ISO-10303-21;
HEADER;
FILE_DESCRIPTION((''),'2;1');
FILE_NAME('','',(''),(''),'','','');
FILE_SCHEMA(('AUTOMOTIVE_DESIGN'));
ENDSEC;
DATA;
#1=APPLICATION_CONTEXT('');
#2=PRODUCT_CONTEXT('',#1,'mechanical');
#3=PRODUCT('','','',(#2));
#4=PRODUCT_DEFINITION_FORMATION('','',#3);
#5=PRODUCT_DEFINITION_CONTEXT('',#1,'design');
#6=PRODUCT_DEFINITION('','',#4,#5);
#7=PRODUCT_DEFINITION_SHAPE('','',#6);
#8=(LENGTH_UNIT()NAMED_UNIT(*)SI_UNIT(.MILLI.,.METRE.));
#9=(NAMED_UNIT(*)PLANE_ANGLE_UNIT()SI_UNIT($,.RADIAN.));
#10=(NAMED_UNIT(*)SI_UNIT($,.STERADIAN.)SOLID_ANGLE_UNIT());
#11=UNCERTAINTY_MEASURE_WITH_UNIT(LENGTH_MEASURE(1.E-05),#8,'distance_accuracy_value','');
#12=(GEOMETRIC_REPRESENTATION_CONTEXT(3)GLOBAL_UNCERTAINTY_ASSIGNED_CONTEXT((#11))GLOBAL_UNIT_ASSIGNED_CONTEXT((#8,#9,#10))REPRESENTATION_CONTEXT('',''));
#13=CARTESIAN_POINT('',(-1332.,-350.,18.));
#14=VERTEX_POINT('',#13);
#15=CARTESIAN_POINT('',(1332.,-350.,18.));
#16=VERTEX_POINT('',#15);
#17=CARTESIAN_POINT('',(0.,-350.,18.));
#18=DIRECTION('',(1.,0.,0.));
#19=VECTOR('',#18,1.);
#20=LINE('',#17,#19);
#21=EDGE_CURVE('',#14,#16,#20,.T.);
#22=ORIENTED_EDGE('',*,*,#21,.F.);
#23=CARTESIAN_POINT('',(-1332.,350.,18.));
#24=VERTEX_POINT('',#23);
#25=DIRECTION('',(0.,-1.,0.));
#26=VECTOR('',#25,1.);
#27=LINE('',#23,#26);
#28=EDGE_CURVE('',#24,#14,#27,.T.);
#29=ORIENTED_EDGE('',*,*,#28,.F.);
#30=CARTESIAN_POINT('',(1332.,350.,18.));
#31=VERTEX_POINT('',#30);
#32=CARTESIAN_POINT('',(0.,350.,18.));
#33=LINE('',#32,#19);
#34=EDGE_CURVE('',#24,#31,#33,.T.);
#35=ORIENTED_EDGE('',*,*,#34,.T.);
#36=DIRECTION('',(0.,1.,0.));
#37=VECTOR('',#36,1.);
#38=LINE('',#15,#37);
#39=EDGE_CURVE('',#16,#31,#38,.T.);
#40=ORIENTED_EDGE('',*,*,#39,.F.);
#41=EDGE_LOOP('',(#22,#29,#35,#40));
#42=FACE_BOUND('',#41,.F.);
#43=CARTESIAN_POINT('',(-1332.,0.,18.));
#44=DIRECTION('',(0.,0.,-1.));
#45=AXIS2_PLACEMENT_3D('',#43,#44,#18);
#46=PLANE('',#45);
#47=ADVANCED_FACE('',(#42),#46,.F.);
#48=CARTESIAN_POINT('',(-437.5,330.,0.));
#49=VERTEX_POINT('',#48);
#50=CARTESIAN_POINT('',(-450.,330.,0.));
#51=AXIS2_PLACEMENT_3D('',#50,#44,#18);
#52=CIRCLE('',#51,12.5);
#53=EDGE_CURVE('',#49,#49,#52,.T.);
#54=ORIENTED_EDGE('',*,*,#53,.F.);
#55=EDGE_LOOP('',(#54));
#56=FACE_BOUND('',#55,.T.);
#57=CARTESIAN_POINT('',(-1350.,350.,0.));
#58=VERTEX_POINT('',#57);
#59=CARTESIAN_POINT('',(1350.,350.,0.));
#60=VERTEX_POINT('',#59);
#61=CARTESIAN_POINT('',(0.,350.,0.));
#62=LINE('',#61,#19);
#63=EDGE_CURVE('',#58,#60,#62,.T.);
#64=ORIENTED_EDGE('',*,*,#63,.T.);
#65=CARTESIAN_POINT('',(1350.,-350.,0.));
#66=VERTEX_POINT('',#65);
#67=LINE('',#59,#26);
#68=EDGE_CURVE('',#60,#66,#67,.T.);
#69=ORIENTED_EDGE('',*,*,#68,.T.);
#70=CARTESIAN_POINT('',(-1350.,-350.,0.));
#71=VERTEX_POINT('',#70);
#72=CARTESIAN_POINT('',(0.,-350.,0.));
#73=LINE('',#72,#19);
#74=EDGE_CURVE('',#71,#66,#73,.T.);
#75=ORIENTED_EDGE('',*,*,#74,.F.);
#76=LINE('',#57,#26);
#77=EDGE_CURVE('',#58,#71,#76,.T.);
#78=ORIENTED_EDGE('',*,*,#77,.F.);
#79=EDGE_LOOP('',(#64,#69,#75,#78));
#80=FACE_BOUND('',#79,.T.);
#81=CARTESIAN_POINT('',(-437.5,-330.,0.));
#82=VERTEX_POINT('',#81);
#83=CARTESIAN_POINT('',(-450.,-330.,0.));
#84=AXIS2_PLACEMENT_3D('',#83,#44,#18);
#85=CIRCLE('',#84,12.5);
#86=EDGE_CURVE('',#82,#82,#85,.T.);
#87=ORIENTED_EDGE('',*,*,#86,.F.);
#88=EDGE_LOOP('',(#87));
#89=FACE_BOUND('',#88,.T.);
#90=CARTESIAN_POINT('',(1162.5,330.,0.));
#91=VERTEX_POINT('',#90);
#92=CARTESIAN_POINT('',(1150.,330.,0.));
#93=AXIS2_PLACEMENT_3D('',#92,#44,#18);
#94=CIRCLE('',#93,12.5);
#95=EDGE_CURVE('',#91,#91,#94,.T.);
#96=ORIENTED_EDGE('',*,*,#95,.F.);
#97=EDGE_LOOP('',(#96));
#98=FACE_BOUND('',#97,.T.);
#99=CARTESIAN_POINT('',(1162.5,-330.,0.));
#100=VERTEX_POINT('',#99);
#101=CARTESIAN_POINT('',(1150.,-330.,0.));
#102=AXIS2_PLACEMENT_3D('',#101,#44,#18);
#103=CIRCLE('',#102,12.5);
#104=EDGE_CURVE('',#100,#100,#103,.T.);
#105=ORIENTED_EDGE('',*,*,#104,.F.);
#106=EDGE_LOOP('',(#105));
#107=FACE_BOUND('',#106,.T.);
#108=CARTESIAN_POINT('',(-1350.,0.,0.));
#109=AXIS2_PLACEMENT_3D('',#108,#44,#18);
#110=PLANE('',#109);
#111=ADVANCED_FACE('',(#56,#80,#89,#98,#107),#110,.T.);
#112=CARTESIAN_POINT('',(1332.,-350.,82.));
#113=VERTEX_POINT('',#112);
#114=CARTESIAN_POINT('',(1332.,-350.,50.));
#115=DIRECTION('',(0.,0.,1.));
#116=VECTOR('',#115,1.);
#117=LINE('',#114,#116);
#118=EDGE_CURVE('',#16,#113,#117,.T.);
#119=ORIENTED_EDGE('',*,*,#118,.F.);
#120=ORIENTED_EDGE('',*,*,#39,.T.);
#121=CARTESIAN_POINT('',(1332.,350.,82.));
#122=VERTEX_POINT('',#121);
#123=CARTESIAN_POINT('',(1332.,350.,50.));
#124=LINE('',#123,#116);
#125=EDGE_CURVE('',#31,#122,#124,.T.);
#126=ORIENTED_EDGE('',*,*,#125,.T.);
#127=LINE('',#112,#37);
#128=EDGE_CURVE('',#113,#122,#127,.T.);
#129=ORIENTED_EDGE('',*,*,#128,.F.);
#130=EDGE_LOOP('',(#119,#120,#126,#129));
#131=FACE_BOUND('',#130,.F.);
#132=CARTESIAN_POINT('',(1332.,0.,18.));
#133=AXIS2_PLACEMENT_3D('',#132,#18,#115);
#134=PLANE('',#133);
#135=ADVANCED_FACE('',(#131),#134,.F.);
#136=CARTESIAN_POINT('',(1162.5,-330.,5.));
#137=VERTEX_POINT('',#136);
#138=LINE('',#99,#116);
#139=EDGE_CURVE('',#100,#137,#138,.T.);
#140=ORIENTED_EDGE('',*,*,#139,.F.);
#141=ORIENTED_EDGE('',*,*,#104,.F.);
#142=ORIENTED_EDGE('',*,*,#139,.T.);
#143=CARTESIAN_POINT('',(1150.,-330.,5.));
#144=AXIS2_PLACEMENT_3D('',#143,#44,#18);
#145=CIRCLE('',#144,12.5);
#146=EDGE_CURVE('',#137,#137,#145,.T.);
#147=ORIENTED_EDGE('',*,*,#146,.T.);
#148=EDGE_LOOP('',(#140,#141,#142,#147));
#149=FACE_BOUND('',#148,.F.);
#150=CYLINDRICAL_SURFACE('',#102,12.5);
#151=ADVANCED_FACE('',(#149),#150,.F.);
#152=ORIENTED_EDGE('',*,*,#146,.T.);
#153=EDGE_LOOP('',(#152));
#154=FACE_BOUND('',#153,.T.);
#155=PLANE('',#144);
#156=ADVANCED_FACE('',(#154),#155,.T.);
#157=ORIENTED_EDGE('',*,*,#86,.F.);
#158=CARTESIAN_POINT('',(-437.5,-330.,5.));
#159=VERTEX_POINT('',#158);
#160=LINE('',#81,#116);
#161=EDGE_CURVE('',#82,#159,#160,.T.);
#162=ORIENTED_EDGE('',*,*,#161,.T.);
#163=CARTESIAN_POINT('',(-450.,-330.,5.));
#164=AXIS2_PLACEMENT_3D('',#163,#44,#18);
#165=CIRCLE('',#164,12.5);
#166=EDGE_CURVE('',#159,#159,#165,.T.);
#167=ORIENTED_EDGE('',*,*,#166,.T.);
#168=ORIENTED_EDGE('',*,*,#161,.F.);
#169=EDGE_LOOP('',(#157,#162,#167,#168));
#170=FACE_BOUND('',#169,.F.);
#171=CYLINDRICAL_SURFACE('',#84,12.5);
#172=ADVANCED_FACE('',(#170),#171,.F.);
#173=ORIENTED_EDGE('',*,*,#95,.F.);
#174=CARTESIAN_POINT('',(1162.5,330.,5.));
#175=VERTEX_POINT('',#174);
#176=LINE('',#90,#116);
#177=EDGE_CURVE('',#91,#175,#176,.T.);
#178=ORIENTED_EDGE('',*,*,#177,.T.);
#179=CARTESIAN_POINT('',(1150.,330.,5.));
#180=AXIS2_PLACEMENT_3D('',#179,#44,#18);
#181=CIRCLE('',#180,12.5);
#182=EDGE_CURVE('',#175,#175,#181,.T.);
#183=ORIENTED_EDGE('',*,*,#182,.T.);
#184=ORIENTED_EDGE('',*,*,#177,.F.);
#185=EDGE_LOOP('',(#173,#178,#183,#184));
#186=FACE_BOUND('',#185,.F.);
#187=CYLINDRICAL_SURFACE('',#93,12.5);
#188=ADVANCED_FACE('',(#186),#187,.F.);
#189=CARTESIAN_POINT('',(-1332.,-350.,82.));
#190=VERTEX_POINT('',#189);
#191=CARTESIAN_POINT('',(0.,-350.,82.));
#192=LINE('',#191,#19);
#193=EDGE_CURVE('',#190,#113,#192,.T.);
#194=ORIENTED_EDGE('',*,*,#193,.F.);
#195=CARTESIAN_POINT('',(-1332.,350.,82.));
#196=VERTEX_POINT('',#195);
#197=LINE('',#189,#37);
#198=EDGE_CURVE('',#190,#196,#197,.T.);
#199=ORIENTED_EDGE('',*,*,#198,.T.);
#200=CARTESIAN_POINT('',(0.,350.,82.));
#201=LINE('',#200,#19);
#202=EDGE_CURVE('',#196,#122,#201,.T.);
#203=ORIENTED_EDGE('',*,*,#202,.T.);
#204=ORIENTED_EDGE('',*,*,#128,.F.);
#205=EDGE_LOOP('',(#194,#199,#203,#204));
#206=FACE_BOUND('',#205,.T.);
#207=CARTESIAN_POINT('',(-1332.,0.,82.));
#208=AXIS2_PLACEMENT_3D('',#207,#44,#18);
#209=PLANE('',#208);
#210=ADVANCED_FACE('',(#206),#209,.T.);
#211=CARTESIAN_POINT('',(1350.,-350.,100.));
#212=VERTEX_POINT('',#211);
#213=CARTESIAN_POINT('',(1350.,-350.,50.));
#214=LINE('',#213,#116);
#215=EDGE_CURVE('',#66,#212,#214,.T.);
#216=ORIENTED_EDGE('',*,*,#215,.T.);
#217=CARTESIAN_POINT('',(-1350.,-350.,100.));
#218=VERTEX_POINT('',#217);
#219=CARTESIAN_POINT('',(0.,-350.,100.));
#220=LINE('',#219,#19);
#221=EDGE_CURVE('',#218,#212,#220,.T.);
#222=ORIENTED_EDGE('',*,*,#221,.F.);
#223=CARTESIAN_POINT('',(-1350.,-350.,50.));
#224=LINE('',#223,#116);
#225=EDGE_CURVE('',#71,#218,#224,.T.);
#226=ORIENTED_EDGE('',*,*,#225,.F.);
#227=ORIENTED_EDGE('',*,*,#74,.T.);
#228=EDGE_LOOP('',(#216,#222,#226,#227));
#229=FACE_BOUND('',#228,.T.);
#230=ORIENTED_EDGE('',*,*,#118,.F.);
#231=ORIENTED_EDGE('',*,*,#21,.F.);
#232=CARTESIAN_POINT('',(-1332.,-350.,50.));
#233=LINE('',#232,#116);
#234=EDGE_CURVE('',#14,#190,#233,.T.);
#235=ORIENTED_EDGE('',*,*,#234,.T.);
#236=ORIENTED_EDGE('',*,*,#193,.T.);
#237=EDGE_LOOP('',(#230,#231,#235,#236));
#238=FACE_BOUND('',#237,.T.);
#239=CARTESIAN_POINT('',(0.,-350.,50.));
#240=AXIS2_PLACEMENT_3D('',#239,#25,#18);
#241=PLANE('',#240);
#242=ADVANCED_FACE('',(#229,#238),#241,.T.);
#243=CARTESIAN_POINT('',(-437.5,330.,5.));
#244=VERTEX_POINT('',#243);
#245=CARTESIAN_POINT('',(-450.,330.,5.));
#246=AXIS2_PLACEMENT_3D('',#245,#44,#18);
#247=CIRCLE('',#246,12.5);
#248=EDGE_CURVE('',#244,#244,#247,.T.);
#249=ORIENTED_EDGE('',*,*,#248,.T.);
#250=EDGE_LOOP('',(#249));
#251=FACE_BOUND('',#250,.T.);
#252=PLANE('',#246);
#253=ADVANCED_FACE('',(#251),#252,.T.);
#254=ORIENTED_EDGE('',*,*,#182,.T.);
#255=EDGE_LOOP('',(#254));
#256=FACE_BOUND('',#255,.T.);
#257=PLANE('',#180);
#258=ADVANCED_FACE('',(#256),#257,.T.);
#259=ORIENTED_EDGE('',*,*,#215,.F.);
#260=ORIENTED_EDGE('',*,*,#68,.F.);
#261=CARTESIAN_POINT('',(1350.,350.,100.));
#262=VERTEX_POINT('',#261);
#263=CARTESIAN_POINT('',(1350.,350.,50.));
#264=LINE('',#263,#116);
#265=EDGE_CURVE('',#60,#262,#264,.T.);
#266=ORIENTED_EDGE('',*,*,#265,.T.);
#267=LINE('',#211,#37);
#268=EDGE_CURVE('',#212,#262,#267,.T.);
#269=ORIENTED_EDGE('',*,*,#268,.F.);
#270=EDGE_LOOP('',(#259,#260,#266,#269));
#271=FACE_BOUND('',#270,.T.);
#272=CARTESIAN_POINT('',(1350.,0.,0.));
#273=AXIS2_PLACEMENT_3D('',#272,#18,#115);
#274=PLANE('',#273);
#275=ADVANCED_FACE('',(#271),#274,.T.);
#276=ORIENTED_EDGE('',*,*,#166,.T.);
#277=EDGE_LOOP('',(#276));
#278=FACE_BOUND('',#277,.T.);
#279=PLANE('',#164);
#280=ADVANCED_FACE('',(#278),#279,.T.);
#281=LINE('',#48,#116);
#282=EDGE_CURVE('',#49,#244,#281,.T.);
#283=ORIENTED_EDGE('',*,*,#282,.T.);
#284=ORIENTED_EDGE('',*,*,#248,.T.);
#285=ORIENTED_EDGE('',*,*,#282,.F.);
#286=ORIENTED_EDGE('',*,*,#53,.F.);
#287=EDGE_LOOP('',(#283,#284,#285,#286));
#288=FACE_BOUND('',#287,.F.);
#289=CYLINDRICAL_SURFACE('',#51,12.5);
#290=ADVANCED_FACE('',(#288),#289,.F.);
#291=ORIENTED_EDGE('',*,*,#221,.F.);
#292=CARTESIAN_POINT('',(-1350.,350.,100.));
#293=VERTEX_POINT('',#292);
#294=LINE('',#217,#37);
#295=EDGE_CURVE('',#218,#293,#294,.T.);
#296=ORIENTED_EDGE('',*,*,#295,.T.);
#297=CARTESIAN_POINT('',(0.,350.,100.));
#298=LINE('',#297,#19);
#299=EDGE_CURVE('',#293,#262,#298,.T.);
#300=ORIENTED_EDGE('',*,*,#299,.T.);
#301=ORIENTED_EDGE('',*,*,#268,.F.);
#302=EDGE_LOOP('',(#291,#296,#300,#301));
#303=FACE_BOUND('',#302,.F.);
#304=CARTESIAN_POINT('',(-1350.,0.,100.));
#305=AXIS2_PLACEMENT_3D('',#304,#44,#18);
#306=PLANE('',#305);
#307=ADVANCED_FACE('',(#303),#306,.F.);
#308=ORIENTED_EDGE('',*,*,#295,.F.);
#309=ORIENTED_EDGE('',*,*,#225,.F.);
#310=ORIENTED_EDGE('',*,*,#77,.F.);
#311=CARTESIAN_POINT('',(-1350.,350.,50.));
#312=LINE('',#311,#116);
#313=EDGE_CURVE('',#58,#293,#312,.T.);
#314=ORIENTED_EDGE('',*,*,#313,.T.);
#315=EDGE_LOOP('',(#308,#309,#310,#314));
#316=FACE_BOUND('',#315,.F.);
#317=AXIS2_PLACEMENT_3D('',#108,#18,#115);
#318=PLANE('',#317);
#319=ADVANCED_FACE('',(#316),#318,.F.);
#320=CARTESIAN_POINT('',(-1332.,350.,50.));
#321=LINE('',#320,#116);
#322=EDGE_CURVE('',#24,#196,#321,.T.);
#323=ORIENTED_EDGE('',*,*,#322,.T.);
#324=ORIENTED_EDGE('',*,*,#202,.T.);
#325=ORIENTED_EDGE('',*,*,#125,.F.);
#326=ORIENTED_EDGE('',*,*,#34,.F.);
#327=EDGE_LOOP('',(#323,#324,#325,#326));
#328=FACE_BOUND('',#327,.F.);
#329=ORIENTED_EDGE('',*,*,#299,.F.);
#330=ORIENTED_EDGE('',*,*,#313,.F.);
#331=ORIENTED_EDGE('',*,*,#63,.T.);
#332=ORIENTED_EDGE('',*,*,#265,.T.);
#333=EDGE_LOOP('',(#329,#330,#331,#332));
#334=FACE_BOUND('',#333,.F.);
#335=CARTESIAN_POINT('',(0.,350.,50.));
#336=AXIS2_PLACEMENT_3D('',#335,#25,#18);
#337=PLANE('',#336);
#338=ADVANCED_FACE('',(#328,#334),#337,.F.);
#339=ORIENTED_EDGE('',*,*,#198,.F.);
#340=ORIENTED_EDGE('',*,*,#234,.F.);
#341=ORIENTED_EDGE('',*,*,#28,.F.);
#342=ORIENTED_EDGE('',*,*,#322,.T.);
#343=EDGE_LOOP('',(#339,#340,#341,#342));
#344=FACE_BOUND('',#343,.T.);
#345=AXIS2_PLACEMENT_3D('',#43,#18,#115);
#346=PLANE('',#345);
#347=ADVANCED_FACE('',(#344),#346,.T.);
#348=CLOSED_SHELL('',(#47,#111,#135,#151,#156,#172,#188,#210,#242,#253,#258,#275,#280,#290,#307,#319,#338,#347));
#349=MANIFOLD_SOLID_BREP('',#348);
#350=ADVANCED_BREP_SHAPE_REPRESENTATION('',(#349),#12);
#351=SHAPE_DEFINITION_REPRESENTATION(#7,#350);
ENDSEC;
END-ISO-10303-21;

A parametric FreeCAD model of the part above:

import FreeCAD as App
import Part
import Sketcher
from FreeCAD import Vector

doc = App.newDocument("Part")
body = doc.addObject("PartDesign::Body", "Body")

# Sketch on XZ plane
sketch1 = body.newObject("Sketcher::SketchObject", "Sketch")
sketch1.AttachmentSupport = (doc.getObject("XZ_Plane"), [""])
sketch1.MapMode = "FlatFace"
sketch1.addGeometry(Part.LineSegment(Vector(-1350, 100, 0), Vector(-1350, 0, 0)), False)
sketch1.addGeometry(Part.LineSegment(Vector(-1350, 0, 0), Vector(1350, 0, 0)), False)
sketch1.addGeometry(Part.LineSegment(Vector(1350, 0, 0), Vector(1350, 100, 0)), False)
sketch1.addGeometry(Part.LineSegment(Vector(1350, 100, 0), Vector(-1350, 100, 0)), False)
sketch1.addGeometry(Part.LineSegment(Vector(1332, 18, 0), Vector(-1332, 18, 0)), False)
sketch1.addGeometry(Part.LineSegment(Vector(-1332, 18, 0), Vector(-1332, 82, 0)), False)
sketch1.addGeometry(Part.LineSegment(Vector(-1332, 82, 0), Vector(1332, 82, 0)), False)
sketch1.addGeometry(Part.LineSegment(Vector(1332, 82, 0), Vector(1332, 18, 0)), False)
sketch1.addConstraint(Sketcher.Constraint("Coincident", 0, 2, 1, 1))
sketch1.addConstraint(Sketcher.Constraint("Coincident", 1, 2, 2, 1))
sketch1.addConstraint(Sketcher.Constraint("Coincident", 2, 2, 3, 1))
sketch1.addConstraint(Sketcher.Constraint("Coincident", 3, 2, 0, 1))
sketch1.addConstraint(Sketcher.Constraint("Coincident", 4, 2, 5, 1))
sketch1.addConstraint(Sketcher.Constraint("Coincident", 5, 2, 6, 1))
sketch1.addConstraint(Sketcher.Constraint("Coincident", 6, 2, 7, 1))
sketch1.addConstraint(Sketcher.Constraint("Coincident", 7, 2, 4, 1))
sketch1.addConstraint(Sketcher.Constraint("Vertical", 0))
sketch1.addConstraint(Sketcher.Constraint("Horizontal", 1))
sketch1.addConstraint(Sketcher.Constraint("Vertical", 2))
sketch1.addConstraint(Sketcher.Constraint("Horizontal", 3))
sketch1.addConstraint(Sketcher.Constraint("Horizontal", 4))
sketch1.addConstraint(Sketcher.Constraint("Vertical", 5))
sketch1.addConstraint(Sketcher.Constraint("Horizontal", 6))
sketch1.addConstraint(Sketcher.Constraint("Vertical", 7))
sketch1.addConstraint(Sketcher.Constraint("Symmetric", 0, 2, 1, 2, -1, 1))
sketch1.addConstraint(Sketcher.Constraint("DistanceX", 1, 1, 1, 2, 2700.0))
sketch1.addConstraint(Sketcher.Constraint("DistanceX", 4, 2, 4, 1, 2664.0))
sketch1.addConstraint(Sketcher.Constraint("DistanceY", 0, 2, 0, 1, 100.0))
sketch1.addConstraint(Sketcher.Constraint("DistanceY", 5, 1, 5, 2, 64.0))
sketch1.addConstraint(Sketcher.Constraint("DistanceX", 4, 2, -1, 1, 1332.0))
sketch1.addConstraint(Sketcher.Constraint("DistanceY", -1, 1, 4, 2, 18.0))
pad1 = body.newObject("PartDesign::Pad", "Pad")
pad1.Profile = sketch1
pad1.Length = 700
pad1.Midplane = True

# Sketch on XY plane
sketch2 = body.newObject("Sketcher::SketchObject", "Sketch001")
sketch2.AttachmentSupport = (doc.getObject("XY_Plane"), [""])
sketch2.MapMode = "FlatFace"
sketch2.addGeometry(Part.Circle(Vector(-450, -330, 0), Vector(0, 0, 1), 12), False)
sketch2.addGeometry(Part.Circle(Vector(-450, 330, 0), Vector(0, 0, 1), 12), False)
sketch2.addGeometry(Part.Circle(Vector(1150, -330, 0), Vector(0, 0, 1), 12), False)
sketch2.addGeometry(Part.Circle(Vector(1150, 330, 0), Vector(0, 0, 1), 12), False)
sketch2.addConstraint(Sketcher.Constraint("Equal", 0, 1))
sketch2.addConstraint(Sketcher.Constraint("Equal", 1, 2))
sketch2.addConstraint(Sketcher.Constraint("Equal", 2, 3))
sketch2.addConstraint(Sketcher.Constraint("Symmetric", 0, 3, 1, 3, -1))
sketch2.addConstraint(Sketcher.Constraint("Symmetric", 2, 3, 3, 3, -1))
sketch2.addConstraint(Sketcher.Constraint("Horizontal", 0, 3, 2, 3))
sketch2.addConstraint(Sketcher.Constraint("Diameter", 0, 25.0))
sketch2.addConstraint(Sketcher.Constraint("DistanceX", 0, 3, -1, 1, 450.0))
sketch2.addConstraint(Sketcher.Constraint("DistanceY", 0, 3, -1, 1, 330.0))
sketch2.addConstraint(Sketcher.Constraint("DistanceX", -1, 1, 2, 3, 1150.0))
pocket1 = body.newObject("PartDesign::Pocket", "Pocket")
pocket1.Profile = sketch2
pocket1.Length = 5
pocket1.Reversed = True

doc.recompute()
